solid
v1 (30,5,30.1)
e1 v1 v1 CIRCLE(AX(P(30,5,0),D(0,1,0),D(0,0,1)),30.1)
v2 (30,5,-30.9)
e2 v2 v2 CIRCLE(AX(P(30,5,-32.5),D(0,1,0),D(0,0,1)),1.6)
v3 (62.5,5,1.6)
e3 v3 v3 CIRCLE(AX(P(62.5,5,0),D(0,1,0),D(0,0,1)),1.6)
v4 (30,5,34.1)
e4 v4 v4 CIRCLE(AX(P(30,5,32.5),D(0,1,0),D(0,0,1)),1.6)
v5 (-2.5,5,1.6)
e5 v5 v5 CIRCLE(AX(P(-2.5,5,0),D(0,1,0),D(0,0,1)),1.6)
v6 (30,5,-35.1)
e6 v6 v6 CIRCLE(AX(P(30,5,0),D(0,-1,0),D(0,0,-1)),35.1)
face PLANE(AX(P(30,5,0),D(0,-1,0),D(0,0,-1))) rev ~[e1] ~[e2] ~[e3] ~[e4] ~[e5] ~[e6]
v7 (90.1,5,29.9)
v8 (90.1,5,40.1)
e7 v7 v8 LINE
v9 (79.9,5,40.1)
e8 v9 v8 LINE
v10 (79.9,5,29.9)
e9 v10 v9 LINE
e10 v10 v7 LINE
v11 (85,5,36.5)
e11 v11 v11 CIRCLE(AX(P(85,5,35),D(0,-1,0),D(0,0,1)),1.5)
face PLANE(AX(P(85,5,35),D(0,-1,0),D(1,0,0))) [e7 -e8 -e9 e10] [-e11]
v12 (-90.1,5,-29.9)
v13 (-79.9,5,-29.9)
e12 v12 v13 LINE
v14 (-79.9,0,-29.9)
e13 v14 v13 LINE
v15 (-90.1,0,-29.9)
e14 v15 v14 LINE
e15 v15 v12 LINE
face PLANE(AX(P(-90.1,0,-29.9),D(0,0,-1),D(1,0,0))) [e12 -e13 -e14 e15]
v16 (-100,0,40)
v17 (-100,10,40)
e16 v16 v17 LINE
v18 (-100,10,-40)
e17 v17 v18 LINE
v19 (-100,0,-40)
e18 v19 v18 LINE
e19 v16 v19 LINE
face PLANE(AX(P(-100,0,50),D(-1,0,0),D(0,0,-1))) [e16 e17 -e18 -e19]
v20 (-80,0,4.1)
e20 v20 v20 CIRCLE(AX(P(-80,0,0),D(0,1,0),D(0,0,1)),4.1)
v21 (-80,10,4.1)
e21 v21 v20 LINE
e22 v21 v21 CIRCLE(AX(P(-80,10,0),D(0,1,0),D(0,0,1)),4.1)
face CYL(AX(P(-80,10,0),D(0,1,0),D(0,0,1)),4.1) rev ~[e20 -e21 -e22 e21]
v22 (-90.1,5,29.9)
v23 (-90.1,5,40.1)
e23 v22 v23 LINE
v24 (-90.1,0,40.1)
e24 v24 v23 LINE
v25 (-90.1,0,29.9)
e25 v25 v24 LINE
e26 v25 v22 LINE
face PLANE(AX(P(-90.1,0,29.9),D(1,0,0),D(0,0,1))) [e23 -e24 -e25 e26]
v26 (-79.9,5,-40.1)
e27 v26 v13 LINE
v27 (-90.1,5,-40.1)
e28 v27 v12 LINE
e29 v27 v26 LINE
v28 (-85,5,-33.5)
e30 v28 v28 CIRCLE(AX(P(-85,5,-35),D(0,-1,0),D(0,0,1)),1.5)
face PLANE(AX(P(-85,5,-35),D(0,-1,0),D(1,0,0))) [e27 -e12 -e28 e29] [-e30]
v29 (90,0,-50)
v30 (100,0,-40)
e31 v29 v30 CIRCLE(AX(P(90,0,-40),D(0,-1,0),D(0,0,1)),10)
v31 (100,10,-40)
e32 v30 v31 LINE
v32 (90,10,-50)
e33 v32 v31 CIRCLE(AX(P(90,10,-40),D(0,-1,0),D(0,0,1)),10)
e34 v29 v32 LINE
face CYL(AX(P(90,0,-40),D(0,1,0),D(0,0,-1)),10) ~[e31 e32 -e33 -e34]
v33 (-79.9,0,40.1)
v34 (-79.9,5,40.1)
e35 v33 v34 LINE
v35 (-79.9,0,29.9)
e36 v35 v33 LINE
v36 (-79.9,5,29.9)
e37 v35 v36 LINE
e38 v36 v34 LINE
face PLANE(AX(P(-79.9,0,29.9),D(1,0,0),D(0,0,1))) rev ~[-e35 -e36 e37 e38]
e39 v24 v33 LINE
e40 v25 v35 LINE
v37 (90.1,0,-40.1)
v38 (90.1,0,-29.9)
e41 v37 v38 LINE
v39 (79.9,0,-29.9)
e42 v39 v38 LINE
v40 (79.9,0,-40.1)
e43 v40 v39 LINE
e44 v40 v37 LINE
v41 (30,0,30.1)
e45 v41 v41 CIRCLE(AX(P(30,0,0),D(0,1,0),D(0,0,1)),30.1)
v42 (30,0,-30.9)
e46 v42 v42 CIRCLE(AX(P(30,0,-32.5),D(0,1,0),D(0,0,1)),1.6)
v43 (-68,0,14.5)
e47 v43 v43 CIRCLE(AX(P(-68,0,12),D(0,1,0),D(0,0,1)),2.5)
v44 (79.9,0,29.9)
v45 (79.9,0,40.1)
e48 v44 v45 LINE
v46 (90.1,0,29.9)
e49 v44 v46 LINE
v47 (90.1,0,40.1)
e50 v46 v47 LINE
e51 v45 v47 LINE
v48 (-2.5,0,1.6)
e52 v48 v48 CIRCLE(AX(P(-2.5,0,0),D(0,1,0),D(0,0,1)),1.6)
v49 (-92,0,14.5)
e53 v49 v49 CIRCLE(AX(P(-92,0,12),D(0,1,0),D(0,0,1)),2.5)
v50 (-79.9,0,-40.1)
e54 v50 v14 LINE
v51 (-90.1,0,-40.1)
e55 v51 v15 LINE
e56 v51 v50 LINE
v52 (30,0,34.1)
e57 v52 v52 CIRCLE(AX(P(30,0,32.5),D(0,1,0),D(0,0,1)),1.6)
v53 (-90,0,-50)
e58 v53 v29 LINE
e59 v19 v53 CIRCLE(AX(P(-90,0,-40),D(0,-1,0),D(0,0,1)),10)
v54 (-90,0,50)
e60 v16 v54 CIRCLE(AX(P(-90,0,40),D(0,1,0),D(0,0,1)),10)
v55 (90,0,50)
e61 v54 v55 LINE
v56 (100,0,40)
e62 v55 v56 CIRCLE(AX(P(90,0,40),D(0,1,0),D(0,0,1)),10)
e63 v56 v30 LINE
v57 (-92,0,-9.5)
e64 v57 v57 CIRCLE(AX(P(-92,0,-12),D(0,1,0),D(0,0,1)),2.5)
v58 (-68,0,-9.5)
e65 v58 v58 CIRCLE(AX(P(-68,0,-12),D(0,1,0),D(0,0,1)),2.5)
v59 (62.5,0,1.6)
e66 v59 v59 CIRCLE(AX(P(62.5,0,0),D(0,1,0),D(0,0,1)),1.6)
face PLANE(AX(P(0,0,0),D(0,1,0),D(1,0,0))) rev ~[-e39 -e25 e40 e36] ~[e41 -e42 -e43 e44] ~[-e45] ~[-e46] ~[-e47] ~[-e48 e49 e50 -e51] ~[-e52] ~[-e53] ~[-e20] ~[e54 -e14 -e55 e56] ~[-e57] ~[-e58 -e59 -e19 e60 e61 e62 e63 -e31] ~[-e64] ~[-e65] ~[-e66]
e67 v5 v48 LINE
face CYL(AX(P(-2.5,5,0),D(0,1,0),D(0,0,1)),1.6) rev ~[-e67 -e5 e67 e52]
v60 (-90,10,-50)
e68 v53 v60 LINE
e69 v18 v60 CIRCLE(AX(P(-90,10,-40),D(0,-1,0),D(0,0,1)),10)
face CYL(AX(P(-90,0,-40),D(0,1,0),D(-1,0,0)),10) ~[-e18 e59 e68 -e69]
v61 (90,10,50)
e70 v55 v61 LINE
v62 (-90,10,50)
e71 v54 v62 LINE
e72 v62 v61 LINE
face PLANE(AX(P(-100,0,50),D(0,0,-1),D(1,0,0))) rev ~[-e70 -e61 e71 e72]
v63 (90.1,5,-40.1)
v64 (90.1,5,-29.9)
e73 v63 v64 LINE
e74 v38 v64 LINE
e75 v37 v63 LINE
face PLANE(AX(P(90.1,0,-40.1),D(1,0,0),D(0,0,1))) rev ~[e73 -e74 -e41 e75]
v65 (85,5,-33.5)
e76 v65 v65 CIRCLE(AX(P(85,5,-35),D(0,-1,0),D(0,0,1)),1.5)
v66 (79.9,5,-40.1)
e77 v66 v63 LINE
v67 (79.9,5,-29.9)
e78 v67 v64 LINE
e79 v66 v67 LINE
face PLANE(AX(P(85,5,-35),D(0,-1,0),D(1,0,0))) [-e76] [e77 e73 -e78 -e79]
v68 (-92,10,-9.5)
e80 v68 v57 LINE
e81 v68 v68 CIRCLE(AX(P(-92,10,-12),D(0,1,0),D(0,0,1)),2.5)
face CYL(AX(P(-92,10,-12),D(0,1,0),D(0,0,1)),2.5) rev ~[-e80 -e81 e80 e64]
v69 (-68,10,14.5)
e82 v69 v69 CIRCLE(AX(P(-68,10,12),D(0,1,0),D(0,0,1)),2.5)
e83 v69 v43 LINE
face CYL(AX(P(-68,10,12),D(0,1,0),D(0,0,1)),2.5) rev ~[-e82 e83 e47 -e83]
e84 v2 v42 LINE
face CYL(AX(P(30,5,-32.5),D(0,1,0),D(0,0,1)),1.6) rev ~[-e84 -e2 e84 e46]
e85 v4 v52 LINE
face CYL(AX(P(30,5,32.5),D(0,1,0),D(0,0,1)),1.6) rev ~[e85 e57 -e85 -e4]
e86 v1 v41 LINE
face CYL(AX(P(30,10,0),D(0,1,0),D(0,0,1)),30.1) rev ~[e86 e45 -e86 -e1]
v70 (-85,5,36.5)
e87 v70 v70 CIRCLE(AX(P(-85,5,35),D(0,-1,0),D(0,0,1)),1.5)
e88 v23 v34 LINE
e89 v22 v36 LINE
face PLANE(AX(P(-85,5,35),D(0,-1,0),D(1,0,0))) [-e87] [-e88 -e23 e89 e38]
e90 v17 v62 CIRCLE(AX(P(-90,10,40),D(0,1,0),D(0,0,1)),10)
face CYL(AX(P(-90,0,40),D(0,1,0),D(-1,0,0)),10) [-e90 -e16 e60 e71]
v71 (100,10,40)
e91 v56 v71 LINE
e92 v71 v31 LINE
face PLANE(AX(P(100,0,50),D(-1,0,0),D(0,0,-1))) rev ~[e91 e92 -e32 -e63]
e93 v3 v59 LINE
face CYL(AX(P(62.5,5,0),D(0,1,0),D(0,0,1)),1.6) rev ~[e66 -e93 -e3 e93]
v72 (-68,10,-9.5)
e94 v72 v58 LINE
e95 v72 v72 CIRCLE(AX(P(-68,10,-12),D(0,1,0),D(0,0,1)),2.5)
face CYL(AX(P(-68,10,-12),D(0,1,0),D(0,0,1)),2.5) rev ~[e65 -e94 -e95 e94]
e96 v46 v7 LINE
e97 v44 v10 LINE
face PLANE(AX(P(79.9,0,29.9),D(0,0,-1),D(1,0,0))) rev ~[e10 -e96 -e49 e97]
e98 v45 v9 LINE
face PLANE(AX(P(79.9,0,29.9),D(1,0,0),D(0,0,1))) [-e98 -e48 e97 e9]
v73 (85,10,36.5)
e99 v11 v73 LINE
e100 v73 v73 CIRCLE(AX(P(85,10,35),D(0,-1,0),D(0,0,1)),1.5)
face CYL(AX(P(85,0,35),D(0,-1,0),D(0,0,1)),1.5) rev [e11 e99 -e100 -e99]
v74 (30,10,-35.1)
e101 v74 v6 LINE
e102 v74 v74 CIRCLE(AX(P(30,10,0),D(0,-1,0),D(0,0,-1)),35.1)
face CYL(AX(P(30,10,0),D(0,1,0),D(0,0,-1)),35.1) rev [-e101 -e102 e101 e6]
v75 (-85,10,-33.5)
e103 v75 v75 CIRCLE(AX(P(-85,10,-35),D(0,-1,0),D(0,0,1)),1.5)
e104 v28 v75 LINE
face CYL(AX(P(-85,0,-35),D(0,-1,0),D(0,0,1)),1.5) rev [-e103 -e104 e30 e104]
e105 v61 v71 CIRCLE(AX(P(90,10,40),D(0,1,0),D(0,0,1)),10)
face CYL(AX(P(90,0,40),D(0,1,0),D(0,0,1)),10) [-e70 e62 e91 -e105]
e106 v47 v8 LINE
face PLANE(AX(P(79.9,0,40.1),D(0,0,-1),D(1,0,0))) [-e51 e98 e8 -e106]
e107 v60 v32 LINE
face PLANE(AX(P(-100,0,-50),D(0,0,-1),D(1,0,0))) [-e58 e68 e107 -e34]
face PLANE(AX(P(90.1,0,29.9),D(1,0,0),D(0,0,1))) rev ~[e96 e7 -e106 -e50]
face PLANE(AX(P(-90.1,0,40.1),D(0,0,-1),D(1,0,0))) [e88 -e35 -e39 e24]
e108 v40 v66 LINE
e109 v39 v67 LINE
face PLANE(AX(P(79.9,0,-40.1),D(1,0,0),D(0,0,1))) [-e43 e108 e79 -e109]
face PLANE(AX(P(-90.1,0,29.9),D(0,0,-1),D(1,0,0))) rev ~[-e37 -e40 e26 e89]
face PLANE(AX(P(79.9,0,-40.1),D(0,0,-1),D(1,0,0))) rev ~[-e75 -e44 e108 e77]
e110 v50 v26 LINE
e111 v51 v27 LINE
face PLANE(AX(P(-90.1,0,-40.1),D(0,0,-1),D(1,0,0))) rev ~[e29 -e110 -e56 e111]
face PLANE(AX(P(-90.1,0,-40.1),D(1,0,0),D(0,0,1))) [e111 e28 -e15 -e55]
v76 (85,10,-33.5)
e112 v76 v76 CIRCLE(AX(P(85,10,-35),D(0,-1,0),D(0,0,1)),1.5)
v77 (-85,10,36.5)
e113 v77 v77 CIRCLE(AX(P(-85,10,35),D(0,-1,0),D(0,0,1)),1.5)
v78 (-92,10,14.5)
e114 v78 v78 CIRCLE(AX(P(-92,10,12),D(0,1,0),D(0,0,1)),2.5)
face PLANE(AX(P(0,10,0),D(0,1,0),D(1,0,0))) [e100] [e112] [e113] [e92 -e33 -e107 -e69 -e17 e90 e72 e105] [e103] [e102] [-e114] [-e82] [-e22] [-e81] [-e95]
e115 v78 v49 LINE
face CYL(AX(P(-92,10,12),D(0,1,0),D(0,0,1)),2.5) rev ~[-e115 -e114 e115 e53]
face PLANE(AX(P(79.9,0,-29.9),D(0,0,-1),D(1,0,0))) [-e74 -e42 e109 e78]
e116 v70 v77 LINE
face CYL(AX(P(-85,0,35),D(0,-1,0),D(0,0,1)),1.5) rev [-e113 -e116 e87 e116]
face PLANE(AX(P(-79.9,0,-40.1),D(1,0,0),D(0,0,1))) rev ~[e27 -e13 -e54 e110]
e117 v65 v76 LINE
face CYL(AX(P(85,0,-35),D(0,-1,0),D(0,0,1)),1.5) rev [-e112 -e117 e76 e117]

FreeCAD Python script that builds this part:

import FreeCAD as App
import Part
import Sketcher


def edges_at(feature, points):
    """Names of the edges that pass closest to the given points."""
    edges = feature.Shape.Edges
    near = lambda p: min(range(len(edges)), key=lambda i: edges[i].distToShape(Part.Vertex(*p))[0])
    return sorted({f"Edge{near(p) + 1}" for p in points})


def add_polygon(sketch, points):
    """Adds a closed chain of lines whose ends are joined by coincident constraints."""
    first, n = sketch.GeometryCount, len(points)
    for a, b in zip(points, points[1:] + points[:1]):
        sketch.addGeometry(Part.LineSegment(App.Vector(*a, 0), App.Vector(*b, 0)), False)
    for i in range(n):
        sketch.addConstraint(Sketcher.Constraint("Coincident", first + i, 2, first + (i + 1) % n, 1))

doc = App.newDocument("Part")
body = doc.addObject("PartDesign::Body", "Body")

# Sketch on XZ plane
sketch1 = body.newObject("Sketcher::SketchObject", "Sketch")
sketch1.AttachmentSupport = (doc.getObject("XZ_Plane"), [""])
sketch1.MapMode = "FlatFace"
add_polygon(sketch1, [(-100, -50), (-100, 50), (100, 50), (100, -50)])  # lines 0-3
sketch1.addConstraint([
    Sketcher.Constraint("Vertical", 0),
    Sketcher.Constraint("Horizontal", 1),
    Sketcher.Constraint("Vertical", 2),
    Sketcher.Constraint("Horizontal", 3),
    Sketcher.Constraint("Symmetric", 0, 2, 2, 2, -1, 1),
    Sketcher.Constraint("DistanceX", 1, 1, 1, 2, 200.0),
    Sketcher.Constraint("DistanceY", 0, 1, 0, 2, 100.0),
])
pad1 = body.newObject("PartDesign::Pad", "Pad")
pad1.Profile = sketch1
pad1.Length = 10
pad1.Reversed = True

# Sketch on XZ plane
sketch2 = body.newObject("Sketcher::SketchObject", "Sketch001")
sketch2.AttachmentSupport = (doc.getObject("XZ_Plane"), [""])
sketch2.MapMode = "FlatFace"
sketch2.AttachmentOffset = App.Placement(App.Vector(0, 0, -10), App.Rotation())
sketch2.addGeometry([
    Part.Circle(App.Vector(-92, -12, 0), App.Vector(0, 0, 1), 2.5),  # 0
    Part.Circle(App.Vector(-68, -12, 0), App.Vector(0, 0, 1), 2.5),  # 1
    Part.Circle(App.Vector(-92, 12, 0), App.Vector(0, 0, 1), 2.5),  # 2
    Part.Circle(App.Vector(-68, 12, 0), App.Vector(0, 0, 1), 2.5),  # 3
    Part.Circle(App.Vector(30, 0, 0), App.Vector(0, 0, 1), 30.1),  # 4
    Part.Circle(App.Vector(-80, 0, 0), App.Vector(0, 0, 1), 4.1),  # 5
], False)
sketch2.addConstraint([
    Sketcher.Constraint("Equal", 0, 1),
    Sketcher.Constraint("Equal", 1, 2),
    Sketcher.Constraint("Equal", 2, 3),
    Sketcher.Constraint("Symmetric", 0, 3, 2, 3, -1),
    Sketcher.Constraint("Symmetric", 1, 3, 3, 3, -1),
    Sketcher.Constraint("PointOnObject", 4, 3, -1),
    Sketcher.Constraint("PointOnObject", 5, 3, -1),
    Sketcher.Constraint("Horizontal", 0, 3, 1, 3),
    Sketcher.Constraint("Diameter", 0, 5.0),
    Sketcher.Constraint("Diameter", 4, 60.2),
    Sketcher.Constraint("Diameter", 5, 8.2),
    Sketcher.Constraint("DistanceX", 0, 3, -1, 1, 92.0),
    Sketcher.Constraint("DistanceY", 0, 3, -1, 1, 12.0),
    Sketcher.Constraint("DistanceX", 1, 3, -1, 1, 68.0),
    Sketcher.Constraint("DistanceX", -1, 1, 4, 3, 30.0),
    Sketcher.Constraint("DistanceX", 5, 3, -1, 1, 80.0),
])
pocket1 = body.newObject("PartDesign::Pocket", "Pocket")
pocket1.Profile = sketch2
pocket1.Type = "ThroughAll"
pocket1.Reversed = True

# Sketch on XZ plane
sketch3 = body.newObject("Sketcher::SketchObject", "Sketch002")
sketch3.AttachmentSupport = (doc.getObject("XZ_Plane"), [""])
sketch3.MapMode = "FlatFace"
sketch3.AttachmentOffset = App.Placement(App.Vector(0, 0, -10), App.Rotation())
sketch3.addGeometry(Part.Circle(App.Vector(30, 0, 0), App.Vector(0, 0, 1), 35.1), False)
sketch3.addConstraint([
    Sketcher.Constraint("PointOnObject", 0, 3, -1),
    Sketcher.Constraint("Diameter", 0, 70.2),
    Sketcher.Constraint("DistanceX", -1, 1, 0, 3, 30.0),
])
pocket2 = body.newObject("PartDesign::Pocket", "Pocket001")
pocket2.Profile = sketch3
pocket2.Length = 5
pocket2.Reversed = True
doc.recompute()

fillet = body.newObject("PartDesign::Fillet", "Fillet")
fillet.Base = (pocket2, edges_at(pocket2, [
    (100, 5, 50),
    (-100, 5, 50),
    (-100, 5, -50),
    (100, 5, -50),
]))
fillet.Radius = 10

# Sketch on XZ plane
sketch4 = body.newObject("Sketcher::SketchObject", "Sketch003")
sketch4.AttachmentSupport = (doc.getObject("XZ_Plane"), [""])
sketch4.MapMode = "FlatFace"
add_polygon(sketch4, [(-90.1, 40.1), (-90.1, 29.9), (-79.9, 29.9), (-79.9, 40.1)])  # lines 0-3
add_polygon(sketch4, [(-90.1, -29.9), (-90.1, -40.1), (-79.9, -40.1), (-79.9, -29.9)])  # lines 4-7
add_polygon(sketch4, [(79.9, 40.1), (79.9, 29.9), (90.1, 29.9), (90.1, 40.1)])  # lines 8-11
add_polygon(sketch4, [(79.9, -29.9), (79.9, -40.1), (90.1, -40.1), (90.1, -29.9)])  # lines 12-15
sketch4.addConstraint([
    Sketcher.Constraint("Vertical", 0),
    Sketcher.Constraint("Horizontal", 1),
    Sketcher.Constraint("Vertical", 2),
    Sketcher.Constraint("Horizontal", 3),
    Sketcher.Constraint("Vertical", 4),
    Sketcher.Constraint("Horizontal", 5),
    Sketcher.Constraint("Vertical", 6),
    Sketcher.Constraint("Horizontal", 7),
    Sketcher.Constraint("Vertical", 8),
    Sketcher.Constraint("Horizontal", 9),
    Sketcher.Constraint("Vertical", 10),
    Sketcher.Constraint("Horizontal", 11),
    Sketcher.Constraint("Vertical", 12),
    Sketcher.Constraint("Horizontal", 13),
    Sketcher.Constraint("Vertical", 14),
    Sketcher.Constraint("Horizontal", 15),
    Sketcher.Constraint("Symmetric", 6, 2, 8, 2, -1, 1),
    Sketcher.Constraint("Symmetric", 4, 2, 10, 2, -1, 1),
    Sketcher.Constraint("Symmetric", 2, 2, 12, 2, -1, 1),
    Sketcher.Constraint("Symmetric", 0, 2, 14, 2, -1, 1),
    Sketcher.Constraint("Symmetric", 1, 2, 8, 2, -2),
    Sketcher.Constraint("Symmetric", 3, 2, 10, 2, -2),
    Sketcher.Constraint("Equal", 15, 0),
    Sketcher.Constraint("DistanceX", 1, 1, 1, 2, 10.2),
    Sketcher.Constraint("DistanceY", 4, 2, 0, 2, 70.0),
    Sketcher.Constraint("DistanceX", 0, 2, 8, 2, 170.0),
])
pocket3 = body.newObject("PartDesign::Pocket", "Pocket002")
pocket3.Profile = sketch4
pocket3.Length = 5

# Sketch on XZ plane
sketch5 = body.newObject("Sketcher::SketchObject", "Sketch004")
sketch5.AttachmentSupport = (doc.getObject("XZ_Plane"), [""])
sketch5.MapMode = "FlatFace"
sketch5.AttachmentOffset = App.Placement(App.Vector(0, 0, -5), App.Rotation())
sketch5.addGeometry([
    Part.Circle(App.Vector(-2.5, 0, 0), App.Vector(0, 0, 1), 1.6),
    Part.Circle(App.Vector(62.5, 0, 0), App.Vector(0, 0, 1), 1.6),
    Part.Circle(App.Vector(30, -32.5, 0), App.Vector(0, 0, 1), 1.6),
    Part.Circle(App.Vector(30, 32.5, 0), App.Vector(0, 0, 1), 1.6),
], False)
sketch5.addConstraint([
    Sketcher.Constraint("Equal", 0, 1),
    Sketcher.Constraint("Equal", 1, 2),
    Sketcher.Constraint("Equal", 2, 3),
    Sketcher.Constraint("Symmetric", 2, 3, 3, 3, -1),
    Sketcher.Constraint("PointOnObject", 0, 3, -1),
    Sketcher.Constraint("PointOnObject", 1, 3, -1),
    Sketcher.Constraint("Diameter", 0, 3.2),
    Sketcher.Constraint("DistanceX", -1, 1, 2, 3, 30.0),
    Sketcher.Constraint("DistanceX", 0, 3, 1, 3, 65.0),
    Sketcher.Constraint("DistanceY", 2, 3, 3, 3, 65.0),
    Sketcher.Constraint("DistanceX", 0, 3, -1, 1, 2.5),
])
pocket4 = body.newObject("PartDesign::Pocket", "Pocket003")
pocket4.Profile = sketch5
pocket4.Type = "ThroughAll"
pocket4.Reversed = True

# Sketch on XZ plane
sketch6 = body.newObject("Sketcher::SketchObject", "Sketch005")
sketch6.AttachmentSupport = (doc.getObject("XZ_Plane"), [""])
sketch6.MapMode = "FlatFace"
sketch6.addGeometry([
    Part.Circle(App.Vector(-85, 35, 0), App.Vector(0, 0, 1), 1.5),
    Part.Circle(App.Vector(-85, -35, 0), App.Vector(0, 0, 1), 1.5),
    Part.Circle(App.Vector(85, -35, 0), App.Vector(0, 0, 1), 1.5),
    Part.Circle(App.Vector(85, 35, 0), App.Vector(0, 0, 1), 1.5),
], False)
sketch6.addConstraint([
    Sketcher.Constraint("Equal", 0, 1),
    Sketcher.Constraint("Equal", 1, 2),
    Sketcher.Constraint("Equal", 2, 3),
    Sketcher.Constraint("Symmetric", 0, 3, 2, 3, -1, 1),
    Sketcher.Constraint("Symmetric", 1, 3, 3, 3, -1, 1),
    Sketcher.Constraint("Symmetric", 1, 3, 2, 3, -2),
    Sketcher.Constraint("Diameter", 0, 3.0),
    Sketcher.Constraint("DistanceX", 0, 3, -1, 1, 85.0),
    Sketcher.Constraint("DistanceY", -1, 1, 0, 3, 35.0),
])
pocket5 = body.newObject("PartDesign::Pocket", "Pocket004")
pocket5.Profile = sketch6
pocket5.Type = "ThroughAll"

doc.recompute()
